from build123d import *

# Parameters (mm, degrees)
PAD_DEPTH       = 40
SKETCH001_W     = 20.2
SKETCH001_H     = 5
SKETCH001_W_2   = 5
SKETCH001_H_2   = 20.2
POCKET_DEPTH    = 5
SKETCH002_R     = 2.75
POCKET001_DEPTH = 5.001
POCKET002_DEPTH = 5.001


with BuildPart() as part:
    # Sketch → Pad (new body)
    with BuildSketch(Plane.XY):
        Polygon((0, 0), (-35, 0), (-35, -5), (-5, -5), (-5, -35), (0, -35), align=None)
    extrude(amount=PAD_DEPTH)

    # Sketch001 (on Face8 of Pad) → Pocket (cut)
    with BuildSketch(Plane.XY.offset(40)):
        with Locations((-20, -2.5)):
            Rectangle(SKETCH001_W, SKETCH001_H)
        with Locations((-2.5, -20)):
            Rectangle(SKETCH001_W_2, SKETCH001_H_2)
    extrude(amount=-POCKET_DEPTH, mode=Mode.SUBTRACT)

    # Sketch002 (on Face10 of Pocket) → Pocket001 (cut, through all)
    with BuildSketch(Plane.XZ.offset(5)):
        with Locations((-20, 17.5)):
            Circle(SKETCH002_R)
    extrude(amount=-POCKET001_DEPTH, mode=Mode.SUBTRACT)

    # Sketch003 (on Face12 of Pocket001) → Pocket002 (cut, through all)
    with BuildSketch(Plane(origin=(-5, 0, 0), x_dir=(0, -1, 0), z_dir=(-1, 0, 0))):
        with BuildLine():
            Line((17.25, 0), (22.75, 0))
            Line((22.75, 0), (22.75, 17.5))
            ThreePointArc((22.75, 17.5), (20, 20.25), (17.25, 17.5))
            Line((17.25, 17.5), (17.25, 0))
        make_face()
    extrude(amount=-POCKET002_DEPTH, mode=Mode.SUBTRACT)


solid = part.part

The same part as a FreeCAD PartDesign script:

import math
import FreeCAD as App
import Part
import Sketcher

V = App.Vector

doc = App.newDocument("Part")
body = doc.addObject("PartDesign::Body", "Body")

# Sketch on XY plane
sketch1 = body.newObject("Sketcher::SketchObject", "Sketch")
sketch1.AttachmentSupport = (doc.getObject("XY_Plane"), [""])
sketch1.MapMode = "FlatFace"
sketch1.addGeometry(Part.LineSegment(V(0, 0, 0), V(-35, 0, 0)), False)
sketch1.addGeometry(Part.LineSegment(V(-35, 0, 0), V(-35, -5, 0)), False)
sketch1.addGeometry(Part.LineSegment(V(-35, -5, 0), V(-5, -5, 0)), False)
sketch1.addGeometry(Part.LineSegment(V(-5, -5, 0), V(-5, -35, 0)), False)
sketch1.addGeometry(Part.LineSegment(V(-5, -35, 0), V(0, -35, 0)), False)
sketch1.addGeometry(Part.LineSegment(V(0, -35, 0), V(0, 0, 0)), False)
sketch1.addConstraint(Sketcher.Constraint("Coincident", 0, 2, 1, 1))
sketch1.addConstraint(Sketcher.Constraint("Coincident", 1, 2, 2, 1))
sketch1.addConstraint(Sketcher.Constraint("Coincident", 2, 2, 3, 1))
sketch1.addConstraint(Sketcher.Constraint("Coincident", 3, 2, 4, 1))
sketch1.addConstraint(Sketcher.Constraint("Coincident", 4, 2, 5, 1))
sketch1.addConstraint(Sketcher.Constraint("Coincident", 5, 2, 0, 1))
sketch1.addConstraint(Sketcher.Constraint("Horizontal", 0))
sketch1.addConstraint(Sketcher.Constraint("Vertical", 1))
sketch1.addConstraint(Sketcher.Constraint("Horizontal", 2))
sketch1.addConstraint(Sketcher.Constraint("Vertical", 3))
sketch1.addConstraint(Sketcher.Constraint("Horizontal", 4))
sketch1.addConstraint(Sketcher.Constraint("Vertical", 5))
sketch1.addConstraint(Sketcher.Constraint("Coincident", 5, 2, -1, 1))
sketch1.addConstraint(Sketcher.Constraint("Equal", 4, 1))
sketch1.addConstraint(Sketcher.Constraint("Equal", 2, 3))
sketch1.addConstraint(Sketcher.Constraint("DistanceX", 0, 2, 0, 1, 35.0))
sketch1.addConstraint(Sketcher.Constraint("DistanceX", 2, 1, 2, 2, 30.0))
pad1 = body.newObject("PartDesign::Pad", "Pad")
pad1.Profile = sketch1
pad1.Length = 40

# Sketch on XY plane
sketch2 = body.newObject("Sketcher::SketchObject", "Sketch001")
sketch2.AttachmentSupport = (doc.getObject("XY_Plane"), [""])
sketch2.MapMode = "FlatFace"
sketch2.AttachmentOffset = App.Placement(V(0, 0, 40), App.Rotation())
sketch2.addGeometry(Part.LineSegment(V(-30.1, 0, 0), V(-30.1, -5, 0)), False)
sketch2.addGeometry(Part.LineSegment(V(-30.1, -5, 0), V(-9.9, -5, 0)), False)
sketch2.addGeometry(Part.LineSegment(V(-9.9, -5, 0), V(-9.9, 0, 0)), False)
sketch2.addGeometry(Part.LineSegment(V(-9.9, 0, 0), V(-30.1, 0, 0)), False)
sketch2.addGeometry(Part.LineSegment(V(-5, -9.9, 0), V(-5, -30.1, 0)), False)
sketch2.addGeometry(Part.LineSegment(V(-5, -30.1, 0), V(0, -30.1, 0)), False)
sketch2.addGeometry(Part.LineSegment(V(0, -30.1, 0), V(0, -9.9, 0)), False)
sketch2.addGeometry(Part.LineSegment(V(0, -9.9, 0), V(-5, -9.9, 0)), False)
sketch2.addConstraint(Sketcher.Constraint("Coincident", 0, 2, 1, 1))
sketch2.addConstraint(Sketcher.Constraint("Coincident", 1, 2, 2, 1))
sketch2.addConstraint(Sketcher.Constraint("Coincident", 2, 2, 3, 1))
sketch2.addConstraint(Sketcher.Constraint("Coincident", 3, 2, 0, 1))
sketch2.addConstraint(Sketcher.Constraint("Coincident", 4, 2, 5, 1))
sketch2.addConstraint(Sketcher.Constraint("Coincident", 5, 2, 6, 1))
sketch2.addConstraint(Sketcher.Constraint("Coincident", 6, 2, 7, 1))
sketch2.addConstraint(Sketcher.Constraint("Coincident", 7, 2, 4, 1))
sketch2.addConstraint(Sketcher.Constraint("Vertical", 0))
sketch2.addConstraint(Sketcher.Constraint("Horizontal", 1))
sketch2.addConstraint(Sketcher.Constraint("Vertical", 2))
sketch2.addConstraint(Sketcher.Constraint("Horizontal", 3))
sketch2.addConstraint(Sketcher.Constraint("Vertical", 4))
sketch2.addConstraint(Sketcher.Constraint("Horizontal", 5))
sketch2.addConstraint(Sketcher.Constraint("Vertical", 6))
sketch2.addConstraint(Sketcher.Constraint("Horizontal", 7))
sketch2.addConstraint(Sketcher.Constraint("PointOnObject", 2, 2, -1))
sketch2.addConstraint(Sketcher.Constraint("PointOnObject", 5, 2, -2))
sketch2.addConstraint(Sketcher.Constraint("Equal", 7, 0))
sketch2.addConstraint(Sketcher.Constraint("Equal", 3, 4))
sketch2.addConstraint(Sketcher.Constraint("DistanceX", 5, 1, 5, 2, 5.0))
sketch2.addConstraint(Sketcher.Constraint("DistanceX", 1, 1, 1, 2, 20.2))
sketch2.addConstraint(Sketcher.Constraint("DistanceX", 0, 2, -1, 1, 30.1))
sketch2.addConstraint(Sketcher.Constraint("DistanceY", 4, 2, -1, 1, 30.1))
pocket1 = body.newObject("PartDesign::Pocket", "Pocket")
pocket1.Profile = sketch2
pocket1.Length = 5

# Sketch on XZ plane
sketch3 = body.newObject("Sketcher::SketchObject", "Sketch002")
sketch3.AttachmentSupport = (doc.getObject("XZ_Plane"), [""])
sketch3.MapMode = "FlatFace"
sketch3.AttachmentOffset = App.Placement(V(0, 0, 5), App.Rotation())
sketch3.addGeometry(Part.Circle(V(-20, 17.5, 0), V(0, 0, 1), 2.75), False)
sketch3.addConstraint(Sketcher.Constraint("Diameter", 0, 5.5))
sketch3.addConstraint(Sketcher.Constraint("DistanceX", 0, 3, -1, 1, 20.0))
sketch3.addConstraint(Sketcher.Constraint("DistanceY", -1, 1, 0, 3, 17.5))
pocket2 = body.newObject("PartDesign::Pocket", "Pocket001")
pocket2.Profile = sketch3
pocket2.Type = "ThroughAll"

# Sketch on YZ plane
sketch4 = body.newObject("Sketcher::SketchObject", "Sketch003")
sketch4.AttachmentSupport = (doc.getObject("YZ_Plane"), [""])
sketch4.MapMode = "FlatFace"
sketch4.AttachmentOffset = App.Placement(V(0, 0, -5), App.Rotation())
sketch4.addGeometry(Part.LineSegment(V(-17.25, 0, 0), V(-22.75, 0, 0)), False)
sketch4.addGeometry(Part.LineSegment(V(-22.75, 0, 0), V(-22.75, 17.5, 0)), False)
sketch4.addGeometry(Part.ArcOfCircle(Part.Circle(V(-20, 17.5, 0), V(0, 0, 1), 2.75), math.radians(0), math.radians(180)), False)
sketch4.addGeometry(Part.LineSegment(V(-17.25, 17.5, 0), V(-17.25, 0, 0)), False)
sketch4.addConstraint(Sketcher.Constraint("Coincident", 0, 2, 1, 1))
sketch4.addConstraint(Sketcher.Constraint("Tangent", 1, 2, 2, 2))
sketch4.addConstraint(Sketcher.Constraint("Tangent", 2, 1, 3, 1))
sketch4.addConstraint(Sketcher.Constraint("Coincident", 3, 2, 0, 1))
sketch4.addConstraint(Sketcher.Constraint("Horizontal", 0))
sketch4.addConstraint(Sketcher.Constraint("Vertical", 1))
sketch4.addConstraint(Sketcher.Constraint("Vertical", 3))
sketch4.addConstraint(Sketcher.Constraint("PointOnObject", 0, 2, -1))
sketch4.addConstraint(Sketcher.Constraint("Radius", 2, 2.75))
sketch4.addConstraint(Sketcher.Constraint("DistanceY", 1, 1, 1, 2, 17.5))
sketch4.addConstraint(Sketcher.Constraint("DistanceX", 2, 3, -1, 1, 20.0))
pocket3 = body.newObject("PartDesign::Pocket", "Pocket002")
pocket3.Profile = sketch4
pocket3.Type = "ThroughAll"
pocket3.Reversed = True

doc.recompute()
